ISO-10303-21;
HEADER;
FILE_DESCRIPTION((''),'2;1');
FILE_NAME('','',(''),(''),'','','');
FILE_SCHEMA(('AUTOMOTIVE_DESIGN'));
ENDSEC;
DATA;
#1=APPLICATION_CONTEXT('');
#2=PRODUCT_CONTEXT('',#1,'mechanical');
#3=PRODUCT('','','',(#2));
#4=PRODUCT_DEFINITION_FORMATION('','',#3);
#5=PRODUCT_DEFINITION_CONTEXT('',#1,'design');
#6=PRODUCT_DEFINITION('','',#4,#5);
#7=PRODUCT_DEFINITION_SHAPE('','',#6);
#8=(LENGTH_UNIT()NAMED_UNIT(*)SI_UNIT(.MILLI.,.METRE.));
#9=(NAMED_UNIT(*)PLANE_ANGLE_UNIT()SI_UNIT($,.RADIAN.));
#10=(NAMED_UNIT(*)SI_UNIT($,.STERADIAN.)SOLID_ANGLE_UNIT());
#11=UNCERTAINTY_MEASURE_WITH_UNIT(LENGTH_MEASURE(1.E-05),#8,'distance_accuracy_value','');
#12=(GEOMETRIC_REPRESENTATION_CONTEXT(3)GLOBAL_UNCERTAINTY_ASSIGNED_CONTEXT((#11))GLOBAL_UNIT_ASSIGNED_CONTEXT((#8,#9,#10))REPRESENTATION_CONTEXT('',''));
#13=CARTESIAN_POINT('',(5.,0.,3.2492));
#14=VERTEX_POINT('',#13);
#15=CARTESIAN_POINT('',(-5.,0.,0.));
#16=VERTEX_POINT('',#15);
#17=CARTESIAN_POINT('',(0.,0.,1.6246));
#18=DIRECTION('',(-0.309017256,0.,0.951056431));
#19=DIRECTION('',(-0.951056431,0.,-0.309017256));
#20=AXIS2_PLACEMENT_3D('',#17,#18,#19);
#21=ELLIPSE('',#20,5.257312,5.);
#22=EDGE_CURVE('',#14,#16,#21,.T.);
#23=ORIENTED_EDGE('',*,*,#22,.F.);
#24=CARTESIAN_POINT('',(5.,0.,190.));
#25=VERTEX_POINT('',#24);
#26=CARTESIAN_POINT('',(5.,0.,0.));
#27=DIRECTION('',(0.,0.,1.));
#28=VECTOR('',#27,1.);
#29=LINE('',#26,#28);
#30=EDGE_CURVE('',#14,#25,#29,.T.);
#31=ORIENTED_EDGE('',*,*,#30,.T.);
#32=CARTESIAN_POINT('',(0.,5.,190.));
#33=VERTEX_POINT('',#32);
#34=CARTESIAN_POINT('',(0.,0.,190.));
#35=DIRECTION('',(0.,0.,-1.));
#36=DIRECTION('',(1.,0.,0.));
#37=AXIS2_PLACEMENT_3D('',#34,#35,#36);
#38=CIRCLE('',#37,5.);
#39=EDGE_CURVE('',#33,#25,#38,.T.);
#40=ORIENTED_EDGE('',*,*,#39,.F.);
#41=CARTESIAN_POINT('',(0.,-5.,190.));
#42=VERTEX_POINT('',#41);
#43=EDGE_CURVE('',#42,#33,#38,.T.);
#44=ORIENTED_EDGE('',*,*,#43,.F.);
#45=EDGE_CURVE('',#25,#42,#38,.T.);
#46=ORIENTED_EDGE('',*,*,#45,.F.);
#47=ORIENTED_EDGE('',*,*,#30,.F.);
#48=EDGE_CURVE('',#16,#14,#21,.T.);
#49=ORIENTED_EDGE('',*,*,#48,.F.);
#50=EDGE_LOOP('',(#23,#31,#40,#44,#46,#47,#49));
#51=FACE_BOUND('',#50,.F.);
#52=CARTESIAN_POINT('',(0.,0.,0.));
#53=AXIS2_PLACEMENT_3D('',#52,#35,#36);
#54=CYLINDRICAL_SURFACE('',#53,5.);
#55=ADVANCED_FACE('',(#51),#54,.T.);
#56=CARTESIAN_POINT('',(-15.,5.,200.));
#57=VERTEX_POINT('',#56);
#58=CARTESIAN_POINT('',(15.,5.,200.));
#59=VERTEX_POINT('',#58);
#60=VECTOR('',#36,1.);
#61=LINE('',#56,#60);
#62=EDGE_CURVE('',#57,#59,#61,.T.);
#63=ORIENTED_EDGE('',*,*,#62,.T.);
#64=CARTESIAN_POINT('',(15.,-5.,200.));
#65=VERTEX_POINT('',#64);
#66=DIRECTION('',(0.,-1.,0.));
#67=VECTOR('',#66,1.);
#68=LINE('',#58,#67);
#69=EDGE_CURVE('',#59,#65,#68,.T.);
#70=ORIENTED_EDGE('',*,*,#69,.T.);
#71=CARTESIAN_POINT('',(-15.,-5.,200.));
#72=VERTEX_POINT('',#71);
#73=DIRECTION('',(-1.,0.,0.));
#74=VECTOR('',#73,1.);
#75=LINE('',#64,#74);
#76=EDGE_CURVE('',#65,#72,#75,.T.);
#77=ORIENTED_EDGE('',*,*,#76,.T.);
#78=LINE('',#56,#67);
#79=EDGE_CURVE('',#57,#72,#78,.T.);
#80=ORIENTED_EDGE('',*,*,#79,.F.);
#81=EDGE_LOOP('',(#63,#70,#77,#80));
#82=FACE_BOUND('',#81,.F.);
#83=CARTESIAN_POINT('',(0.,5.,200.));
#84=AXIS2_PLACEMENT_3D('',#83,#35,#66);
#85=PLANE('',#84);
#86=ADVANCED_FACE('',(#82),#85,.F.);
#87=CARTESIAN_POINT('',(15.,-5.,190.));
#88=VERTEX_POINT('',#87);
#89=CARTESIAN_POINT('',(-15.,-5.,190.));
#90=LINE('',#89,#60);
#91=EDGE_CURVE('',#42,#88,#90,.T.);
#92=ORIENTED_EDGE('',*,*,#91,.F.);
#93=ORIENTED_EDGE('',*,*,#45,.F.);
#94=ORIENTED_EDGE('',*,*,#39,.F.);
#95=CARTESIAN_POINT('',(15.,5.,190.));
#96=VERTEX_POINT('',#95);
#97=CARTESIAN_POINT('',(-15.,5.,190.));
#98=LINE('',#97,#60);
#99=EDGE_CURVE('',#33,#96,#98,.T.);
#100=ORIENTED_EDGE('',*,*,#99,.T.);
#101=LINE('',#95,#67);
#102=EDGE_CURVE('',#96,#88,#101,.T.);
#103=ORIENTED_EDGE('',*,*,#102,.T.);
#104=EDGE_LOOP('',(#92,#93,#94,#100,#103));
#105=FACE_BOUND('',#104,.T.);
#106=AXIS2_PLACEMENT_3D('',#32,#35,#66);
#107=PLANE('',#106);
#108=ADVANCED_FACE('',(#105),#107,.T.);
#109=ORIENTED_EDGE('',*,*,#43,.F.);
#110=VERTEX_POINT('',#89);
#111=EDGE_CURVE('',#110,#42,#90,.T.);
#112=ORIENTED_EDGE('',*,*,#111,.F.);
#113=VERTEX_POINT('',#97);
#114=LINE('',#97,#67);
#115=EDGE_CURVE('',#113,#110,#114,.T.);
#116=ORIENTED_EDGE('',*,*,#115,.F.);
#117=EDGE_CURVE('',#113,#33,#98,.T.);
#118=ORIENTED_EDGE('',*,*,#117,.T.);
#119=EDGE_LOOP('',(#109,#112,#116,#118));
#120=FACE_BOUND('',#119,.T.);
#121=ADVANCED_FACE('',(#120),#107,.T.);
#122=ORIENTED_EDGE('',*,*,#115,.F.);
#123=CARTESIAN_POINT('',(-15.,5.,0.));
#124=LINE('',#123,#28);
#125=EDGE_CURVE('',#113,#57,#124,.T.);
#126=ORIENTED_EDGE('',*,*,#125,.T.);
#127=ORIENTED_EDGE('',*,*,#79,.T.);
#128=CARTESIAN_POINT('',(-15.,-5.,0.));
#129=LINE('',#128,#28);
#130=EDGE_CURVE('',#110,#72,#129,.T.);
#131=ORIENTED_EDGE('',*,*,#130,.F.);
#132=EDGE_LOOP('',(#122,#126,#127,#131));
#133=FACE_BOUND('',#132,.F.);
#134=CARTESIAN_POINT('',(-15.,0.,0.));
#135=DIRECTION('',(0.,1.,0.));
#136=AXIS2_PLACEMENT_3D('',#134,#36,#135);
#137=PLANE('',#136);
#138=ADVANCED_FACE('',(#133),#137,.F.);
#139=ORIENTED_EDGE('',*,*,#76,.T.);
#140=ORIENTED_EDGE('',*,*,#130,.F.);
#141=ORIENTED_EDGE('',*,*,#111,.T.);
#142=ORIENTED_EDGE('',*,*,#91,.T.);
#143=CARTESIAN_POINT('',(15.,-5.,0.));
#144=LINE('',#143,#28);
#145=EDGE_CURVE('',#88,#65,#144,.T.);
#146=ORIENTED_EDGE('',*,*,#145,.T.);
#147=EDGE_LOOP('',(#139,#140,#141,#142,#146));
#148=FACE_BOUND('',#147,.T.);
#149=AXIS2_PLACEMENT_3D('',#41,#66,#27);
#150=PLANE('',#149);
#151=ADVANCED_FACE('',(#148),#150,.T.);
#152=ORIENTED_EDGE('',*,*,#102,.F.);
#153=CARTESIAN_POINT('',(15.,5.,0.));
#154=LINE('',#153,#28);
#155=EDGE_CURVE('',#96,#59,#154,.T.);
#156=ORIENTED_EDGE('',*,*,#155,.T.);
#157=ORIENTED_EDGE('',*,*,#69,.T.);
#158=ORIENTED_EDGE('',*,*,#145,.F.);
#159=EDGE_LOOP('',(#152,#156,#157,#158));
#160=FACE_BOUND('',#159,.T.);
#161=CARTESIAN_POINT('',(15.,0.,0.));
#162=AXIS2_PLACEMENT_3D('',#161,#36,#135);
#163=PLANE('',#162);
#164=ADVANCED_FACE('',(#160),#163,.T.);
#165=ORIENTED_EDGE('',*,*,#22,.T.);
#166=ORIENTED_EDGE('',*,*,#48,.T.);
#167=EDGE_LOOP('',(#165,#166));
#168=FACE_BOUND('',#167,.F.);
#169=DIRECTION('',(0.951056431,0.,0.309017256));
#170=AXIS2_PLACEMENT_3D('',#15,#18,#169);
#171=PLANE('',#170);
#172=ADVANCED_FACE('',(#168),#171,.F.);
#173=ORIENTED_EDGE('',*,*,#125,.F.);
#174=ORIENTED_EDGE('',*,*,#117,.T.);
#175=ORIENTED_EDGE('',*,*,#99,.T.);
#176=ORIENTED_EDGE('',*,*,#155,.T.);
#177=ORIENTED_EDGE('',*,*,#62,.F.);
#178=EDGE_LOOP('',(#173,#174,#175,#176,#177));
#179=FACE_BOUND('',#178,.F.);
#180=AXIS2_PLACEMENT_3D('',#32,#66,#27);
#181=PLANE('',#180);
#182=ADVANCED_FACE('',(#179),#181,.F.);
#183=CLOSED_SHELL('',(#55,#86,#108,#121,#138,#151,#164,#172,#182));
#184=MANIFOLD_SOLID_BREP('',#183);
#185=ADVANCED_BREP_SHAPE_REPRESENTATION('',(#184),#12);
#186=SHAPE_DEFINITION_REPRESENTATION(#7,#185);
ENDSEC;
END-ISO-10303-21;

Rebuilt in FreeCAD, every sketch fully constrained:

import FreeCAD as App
import Part
import Sketcher
Q = App.Units.Quantity


def add_polygon(sketch, points):
    """Adds a closed chain of lines whose ends are joined by coincident constraints."""
    first, n = sketch.GeometryCount, len(points)
    for a, b in zip(points, points[1:] + points[:1]):
        sketch.addGeometry(Part.LineSegment(App.Vector(*a, 0), App.Vector(*b, 0)), False)
    for i in range(n):
        sketch.addConstraint(Sketcher.Constraint("Coincident", first + i, 2, first + (i + 1) % n, 1))

doc = App.newDocument("Part")
params = doc.addObject("Spreadsheet::Sheet", "Params")
for row, (alias, value) in enumerate([
    ("sketch1_diameter", "10 mm"),
    ("pad1_length", "200 mm"),
    ("sketch2_width", "10 mm"),
    ("pad2_length", "30 mm"),
    ("sketch3_width", "10 mm"),
], start=1):
    params.set(f"A{row}", alias)
    params.set(f"B{row}", "=" + value)
    params.setAlias(f"B{row}", alias)

body = doc.addObject("PartDesign::Body", "Body")

sketch1 = body.newObject("Sketcher::SketchObject", "Sketch")
sketch1.AttachmentSupport = (doc.getObject("XY_Plane"), [""])
sketch1.MapMode = "FlatFace"
sketch1.addGeometry(Part.Circle(App.Vector(0, 0, 0), App.Vector(0, 0, 1), 5), False)
sketch1.addConstraint([
    Sketcher.Constraint("Coincident", 0, 3, -1, 1),
    Sketcher.Constraint("Diameter", 0, Q("10 mm")),
])
sketch1.setExpression("Constraints[1]", "Params.sketch1_diameter")
pad1 = body.newObject("PartDesign::Pad", "Pad")
pad1.Profile = sketch1
pad1.setExpression("Length", "Params.pad1_length")

sketch2 = body.newObject("Sketcher::SketchObject", "Sketch001")
sketch2.AttachmentSupport = (doc.getObject("YZ_Plane"), [""])
sketch2.MapMode = "FlatFace"
add_polygon(sketch2, [(-5, 200), (-5, 190), (5, 190), (5, 200)])
sketch2.addConstraint([
    Sketcher.Constraint("Vertical", 0),
    Sketcher.Constraint("Horizontal", 1),
    Sketcher.Constraint("Vertical", 2),
    Sketcher.Constraint("Horizontal", 3),
    Sketcher.Constraint("Equal", 3, 0),
    Sketcher.Constraint("DistanceX", 1, 1, 1, 2, Q("10 mm")),
    Sketcher.Constraint("DistanceX", 0, 2, -1, 1, Q("5 mm")),
    Sketcher.Constraint("DistanceY", -1, 1, 0, 2, Q("190 mm")),
])
sketch2.setExpression("Constraints[9]", "Params.sketch2_width")
pad2 = body.newObject("PartDesign::Pad", "Pad001")
pad2.Profile = sketch2
pad2.setExpression("Length", "Params.pad2_length")
pad2.Midplane = True

sketch3 = body.newObject("Sketcher::SketchObject", "Sketch002")
sketch3.AttachmentSupport = (doc.getObject("XZ_Plane"), [""])
sketch3.MapMode = "FlatFace"
add_polygon(sketch3, [(5, 3.2492), (-5, 0), (5, 0)])
sketch3.addConstraint([
    Sketcher.Constraint("Horizontal", 1),
    Sketcher.Constraint("Vertical", 2),
    Sketcher.Constraint("Symmetric", 0, 2, 1, 2, -1, 1),
    Sketcher.Constraint("DistanceX", 1, 1, 1, 2, Q("10 mm")),
    Sketcher.Constraint("Angle", 0, Q("-162 deg")),
])
sketch3.setExpression("Constraints[6]", "Params.sketch3_width")
pocket1 = body.newObject("PartDesign::Pocket", "Pocket")
pocket1.Profile = sketch3
pocket1.Type = "ThroughAll"
pocket1.Midplane = True

doc.recompute()
